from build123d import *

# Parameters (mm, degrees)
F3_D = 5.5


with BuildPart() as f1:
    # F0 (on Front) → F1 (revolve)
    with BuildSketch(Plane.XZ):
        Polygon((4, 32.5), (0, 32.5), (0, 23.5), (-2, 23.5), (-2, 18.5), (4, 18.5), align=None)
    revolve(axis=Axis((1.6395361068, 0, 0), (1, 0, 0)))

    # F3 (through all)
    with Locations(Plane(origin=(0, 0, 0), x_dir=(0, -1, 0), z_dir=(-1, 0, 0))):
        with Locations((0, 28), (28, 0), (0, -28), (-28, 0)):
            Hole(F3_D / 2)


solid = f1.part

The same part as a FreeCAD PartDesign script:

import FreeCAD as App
import Part
import Sketcher
from FreeCAD import Vector


def add_polygon(sketch, points):
    """Adds a closed chain of lines whose ends are joined by coincident constraints."""
    first, n = sketch.GeometryCount, len(points)
    for a, b in zip(points, points[1:] + points[:1]):
        sketch.addGeometry(Part.LineSegment(App.Vector(*a, 0), App.Vector(*b, 0)), False)
    for i in range(n):
        sketch.addConstraint(Sketcher.Constraint("Coincident", first + i, 2, first + (i + 1) % n, 1))

doc = App.newDocument("Part")
body = doc.addObject("PartDesign::Body", "Body")

sketch1 = body.newObject("Sketcher::SketchObject", "Sketch")
sketch1.AttachmentSupport = (doc.getObject("XZ_Plane"), [""])
sketch1.MapMode = "FlatFace"
add_polygon(sketch1, [(4, 32.5), (0, 32.5), (0, 23.5), (-2, 23.5), (-2, 18.5), (4, 18.5)])
sketch1.addConstraint([
    Sketcher.Constraint("Horizontal", 0),
    Sketcher.Constraint("Vertical", 1),
    Sketcher.Constraint("Horizontal", 2),
    Sketcher.Constraint("Vertical", 3),
    Sketcher.Constraint("Horizontal", 4),
    Sketcher.Constraint("Vertical", 5),
    Sketcher.Constraint("PointOnObject", 0, 2, -2),
    Sketcher.Constraint("DistanceX", 0, 2, 0, 1, 4.0),
    Sketcher.Constraint("DistanceX", 2, 2, 2, 1, 2.0),
    Sketcher.Constraint("DistanceY", 1, 2, 1, 1, 9.0),
    Sketcher.Constraint("DistanceY", 3, 2, 3, 1, 5.0),
    Sketcher.Constraint("DistanceY", -1, 1, 0, 2, 32.5),
])
revolution = body.newObject("PartDesign::Revolution", "Revolution")
revolution.Profile = sketch1
revolution.ReferenceAxis = (sketch1, ["H_Axis"])
revolution.Angle = 360

sketch2 = body.newObject("Sketcher::SketchObject", "Sketch001")
sketch2.AttachmentSupport = (doc.getObject("YZ_Plane"), [""])
sketch2.MapMode = "FlatFace"
sketch2.addGeometry([
    Part.Circle(Vector(0, 28, 0), Vector(0, 0, 1), 2.75),
    Part.Circle(Vector(-28, 0, 0), Vector(0, 0, 1), 2.75),
    Part.Circle(Vector(0, -28, 0), Vector(0, 0, 1), 2.75),
    Part.Circle(Vector(28, 0, 0), Vector(0, 0, 1), 2.75),
], False)
sketch2.addConstraint([
    Sketcher.Constraint("Equal", 0, 1),
    Sketcher.Constraint("Equal", 1, 2),
    Sketcher.Constraint("Equal", 2, 3),
    Sketcher.Constraint("Symmetric", 0, 3, 2, 3, -1, 1),
    Sketcher.Constraint("Symmetric", 1, 3, 3, 3, -1, 1),
    Sketcher.Constraint("PointOnObject", 0, 3, -2),
    Sketcher.Constraint("PointOnObject", 1, 3, -1),
    Sketcher.Constraint("Diameter", 0, 5.5),
    Sketcher.Constraint("DistanceY", -1, 1, 0, 3, 28.0),
    Sketcher.Constraint("DistanceX", 1, 3, -1, 1, 28.0),
])
doc.recompute()
hole = body.newObject("PartDesign::Hole", "Hole")
hole.Profile = sketch2
hole.ThreadType = "None"
hole.Diameter = 5.5
hole.DepthType = "ThroughAll"
hole.Reversed = True

doc.recompute()
